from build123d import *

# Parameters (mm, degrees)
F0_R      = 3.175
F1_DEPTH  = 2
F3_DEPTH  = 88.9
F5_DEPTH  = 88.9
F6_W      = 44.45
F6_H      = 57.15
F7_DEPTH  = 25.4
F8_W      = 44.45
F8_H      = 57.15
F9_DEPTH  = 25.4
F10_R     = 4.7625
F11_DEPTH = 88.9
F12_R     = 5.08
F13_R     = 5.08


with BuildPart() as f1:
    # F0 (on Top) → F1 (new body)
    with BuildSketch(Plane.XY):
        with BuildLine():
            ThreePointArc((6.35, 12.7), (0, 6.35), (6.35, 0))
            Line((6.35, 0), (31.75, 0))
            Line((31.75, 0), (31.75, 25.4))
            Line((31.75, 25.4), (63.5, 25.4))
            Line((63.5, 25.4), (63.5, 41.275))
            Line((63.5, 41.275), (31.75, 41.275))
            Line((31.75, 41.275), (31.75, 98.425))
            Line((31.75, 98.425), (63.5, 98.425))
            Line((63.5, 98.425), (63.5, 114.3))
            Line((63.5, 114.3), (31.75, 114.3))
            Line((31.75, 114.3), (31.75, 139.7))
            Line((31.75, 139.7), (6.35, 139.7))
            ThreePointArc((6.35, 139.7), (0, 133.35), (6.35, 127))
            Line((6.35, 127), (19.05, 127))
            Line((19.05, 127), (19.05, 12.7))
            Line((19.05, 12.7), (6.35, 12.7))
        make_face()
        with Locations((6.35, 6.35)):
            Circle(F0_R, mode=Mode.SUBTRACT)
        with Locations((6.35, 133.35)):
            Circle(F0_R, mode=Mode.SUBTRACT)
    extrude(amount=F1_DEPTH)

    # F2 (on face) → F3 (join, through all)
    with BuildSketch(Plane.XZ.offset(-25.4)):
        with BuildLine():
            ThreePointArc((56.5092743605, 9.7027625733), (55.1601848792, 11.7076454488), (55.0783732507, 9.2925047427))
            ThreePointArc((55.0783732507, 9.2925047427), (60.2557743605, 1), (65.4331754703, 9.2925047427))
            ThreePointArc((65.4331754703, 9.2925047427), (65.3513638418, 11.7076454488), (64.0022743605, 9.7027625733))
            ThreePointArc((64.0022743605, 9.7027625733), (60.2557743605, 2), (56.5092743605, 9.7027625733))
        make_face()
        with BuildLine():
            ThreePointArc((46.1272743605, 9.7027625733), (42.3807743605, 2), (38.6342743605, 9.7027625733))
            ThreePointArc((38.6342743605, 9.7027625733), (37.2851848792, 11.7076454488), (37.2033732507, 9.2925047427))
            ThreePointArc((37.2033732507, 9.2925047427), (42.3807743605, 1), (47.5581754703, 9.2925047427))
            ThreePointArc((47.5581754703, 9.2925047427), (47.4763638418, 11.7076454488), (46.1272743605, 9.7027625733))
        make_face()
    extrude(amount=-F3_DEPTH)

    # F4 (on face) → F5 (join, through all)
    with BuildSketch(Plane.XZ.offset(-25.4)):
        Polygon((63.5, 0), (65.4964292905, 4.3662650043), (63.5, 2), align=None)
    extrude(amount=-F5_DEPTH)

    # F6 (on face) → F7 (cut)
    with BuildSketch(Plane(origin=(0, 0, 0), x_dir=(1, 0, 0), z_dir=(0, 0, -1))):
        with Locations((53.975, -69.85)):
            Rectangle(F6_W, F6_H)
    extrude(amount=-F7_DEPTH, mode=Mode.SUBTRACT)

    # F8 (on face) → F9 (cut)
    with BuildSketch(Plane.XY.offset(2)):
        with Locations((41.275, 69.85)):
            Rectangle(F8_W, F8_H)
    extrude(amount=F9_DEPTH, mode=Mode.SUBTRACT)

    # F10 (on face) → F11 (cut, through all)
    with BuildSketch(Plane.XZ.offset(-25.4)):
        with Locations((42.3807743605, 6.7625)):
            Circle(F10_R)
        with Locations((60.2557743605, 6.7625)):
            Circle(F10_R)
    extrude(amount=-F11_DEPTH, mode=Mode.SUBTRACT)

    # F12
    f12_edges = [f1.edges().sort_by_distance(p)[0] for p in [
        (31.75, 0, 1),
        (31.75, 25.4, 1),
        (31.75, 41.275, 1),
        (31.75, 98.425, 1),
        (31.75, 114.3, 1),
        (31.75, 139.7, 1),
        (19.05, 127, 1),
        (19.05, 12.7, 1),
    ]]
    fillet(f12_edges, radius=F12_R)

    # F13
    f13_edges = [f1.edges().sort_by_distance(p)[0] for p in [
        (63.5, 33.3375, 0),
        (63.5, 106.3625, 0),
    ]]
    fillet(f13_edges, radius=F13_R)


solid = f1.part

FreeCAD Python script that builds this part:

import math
import FreeCAD as App
import Part
import Sketcher

V = App.Vector
Q = App.Units.Quantity


def edges_at(feature, points):
    """Names of the edges that pass closest to the given points."""
    edges = feature.Shape.Edges
    near = lambda p: min(range(len(edges)), key=lambda i: edges[i].distToShape(Part.Vertex(*p))[0])
    return sorted({f"Edge{near(p) + 1}" for p in points})

doc = App.newDocument("Part")
body = doc.addObject("PartDesign::Body", "Body")

sketch1 = body.newObject("Sketcher::SketchObject", "Sketch")
sketch1.AttachmentSupport = (doc.getObject("XY_Plane"), [""])
sketch1.MapMode = "FlatFace"
sketch1.addGeometry(Part.ArcOfCircle(Part.Circle(V(6.3, 6.3, 0), V(0, 0, 1), 6.3), math.radians(90), math.radians(270)), False)
sketch1.addGeometry(Part.LineSegment(V(6.3, 0, 0), V(31.8, 0, 0)), False)
sketch1.addGeometry(Part.LineSegment(V(31.8, 0, 0), V(31.8, 25.4, 0)), False)
sketch1.addGeometry(Part.LineSegment(V(31.8, 25.4, 0), V(63.5, 25.4, 0)), False)
sketch1.addGeometry(Part.LineSegment(V(63.5, 25.4, 0), V(63.5, 41.3, 0)), False)
sketch1.addGeometry(Part.LineSegment(V(63.5, 41.3, 0), V(31.8, 41.3, 0)), False)
sketch1.addGeometry(Part.LineSegment(V(31.8, 41.3, 0), V(31.8, 98.4, 0)), False)
sketch1.addGeometry(Part.LineSegment(V(31.8, 98.4, 0), V(63.5, 98.4, 0)), False)
sketch1.addGeometry(Part.LineSegment(V(63.5, 98.4, 0), V(63.5, 114.3, 0)), False)
sketch1.addGeometry(Part.LineSegment(V(63.5, 114.3, 0), V(31.8, 114.3, 0)), False)
sketch1.addGeometry(Part.LineSegment(V(31.8, 114.3, 0), V(31.8, 139.7, 0)), False)
sketch1.addGeometry(Part.LineSegment(V(31.8, 139.7, 0), V(6.3, 139.7, 0)), False)
sketch1.addGeometry(Part.ArcOfCircle(Part.Circle(V(6.3, 133.3, 0), V(0, 0, 1), 6.3), math.radians(90), math.radians(270)), False)
sketch1.addGeometry(Part.LineSegment(V(6.3, 127, 0), V(19.1, 127, 0)), False)
sketch1.addGeometry(Part.LineSegment(V(19.1, 127, 0), V(19.1, 12.7, 0)), False)
sketch1.addGeometry(Part.LineSegment(V(19.1, 12.7, 0), V(6.3, 12.7, 0)), False)
sketch1.addGeometry(Part.Circle(V(6.3, 6.3, 0), V(0, 0, 1), 3.2), False)
sketch1.addGeometry(Part.Circle(V(6.3, 133.3, 0), V(0, 0, 1), 3.2), False)
sketch1.addConstraint(Sketcher.Constraint("Tangent", 0, 2, 1, 1))
sketch1.addConstraint(Sketcher.Constraint("Coincident", 1, 2, 2, 1))
sketch1.addConstraint(Sketcher.Constraint("Coincident", 2, 2, 3, 1))
sketch1.addConstraint(Sketcher.Constraint("Coincident", 3, 2, 4, 1))
sketch1.addConstraint(Sketcher.Constraint("Coincident", 4, 2, 5, 1))
sketch1.addConstraint(Sketcher.Constraint("Coincident", 5, 2, 6, 1))
sketch1.addConstraint(Sketcher.Constraint("Coincident", 6, 2, 7, 1))
sketch1.addConstraint(Sketcher.Constraint("Coincident", 7, 2, 8, 1))
sketch1.addConstraint(Sketcher.Constraint("Coincident", 8, 2, 9, 1))
sketch1.addConstraint(Sketcher.Constraint("Coincident", 9, 2, 10, 1))
sketch1.addConstraint(Sketcher.Constraint("Coincident", 10, 2, 11, 1))
sketch1.addConstraint(Sketcher.Constraint("Tangent", 11, 2, 12, 1))
sketch1.addConstraint(Sketcher.Constraint("Tangent", 12, 2, 13, 1))
sketch1.addConstraint(Sketcher.Constraint("Coincident", 13, 2, 14, 1))
sketch1.addConstraint(Sketcher.Constraint("Coincident", 14, 2, 15, 1))
sketch1.addConstraint(Sketcher.Constraint("Tangent", 15, 2, 0, 1))
sketch1.addConstraint(Sketcher.Constraint("Horizontal", 1))
sketch1.addConstraint(Sketcher.Constraint("Vertical", 2))
sketch1.addConstraint(Sketcher.Constraint("Horizontal", 3))
sketch1.addConstraint(Sketcher.Constraint("Vertical", 4))
sketch1.addConstraint(Sketcher.Constraint("Horizontal", 5))
sketch1.addConstraint(Sketcher.Constraint("Vertical", 6))
sketch1.addConstraint(Sketcher.Constraint("Horizontal", 7))
sketch1.addConstraint(Sketcher.Constraint("Vertical", 8))
sketch1.addConstraint(Sketcher.Constraint("Horizontal", 9))
sketch1.addConstraint(Sketcher.Constraint("Vertical", 10))
sketch1.addConstraint(Sketcher.Constraint("Horizontal", 11))
sketch1.addConstraint(Sketcher.Constraint("Horizontal", 13))
sketch1.addConstraint(Sketcher.Constraint("Vertical", 14))
sketch1.addConstraint(Sketcher.Constraint("Horizontal", 15))
sketch1.addConstraint(Sketcher.Constraint("Coincident", 16, 3, 0, 3))
sketch1.addConstraint(Sketcher.Constraint("Coincident", 17, 3, 12, 3))
sketch1.addConstraint(Sketcher.Constraint("Equal", 0, 12))
sketch1.addConstraint(Sketcher.Constraint("Equal", 16, 17))
sketch1.addConstraint(Sketcher.Constraint("PointOnObject", 0, 2, -1))
sketch1.addConstraint(Sketcher.Constraint("Vertical", 0, 3, 12, 3))
sketch1.addConstraint(Sketcher.Constraint("Vertical", 2, 2, 5, 2))
sketch1.addConstraint(Sketcher.Constraint("Vertical", 4, 2, 7, 2))
sketch1.addConstraint(Sketcher.Constraint("Vertical", 6, 2, 9, 2))
sketch1.addConstraint(Sketcher.Constraint("Equal", 11, 2))
sketch1.addConstraint(Sketcher.Constraint("Equal", 4, 8))
sketch1.addConstraint(Sketcher.Constraint("Equal", 2, 10))
sketch1.addConstraint(Sketcher.Constraint("Diameter", 16, Q("0.25 in")))
sketch1.addConstraint(Sketcher.Constraint("DistanceX", 1, 1, 1, 2, Q("1 in")))
sketch1.addConstraint(Sketcher.Constraint("Radius", 0, Q("0.25 in")))
sketch1.addConstraint(Sketcher.Constraint("DistanceX", 13, 1, 13, 2, Q("0.5 in")))
sketch1.addConstraint(Sketcher.Constraint("DistanceY", 14, 2, 14, 1, Q("4.5 in")))
sketch1.addConstraint(Sketcher.Constraint("DistanceX", 3, 1, 3, 2, Q("1.25 in")))
sketch1.addConstraint(Sketcher.Constraint("DistanceY", 6, 1, 6, 2, Q("2.25 in")))
sketch1.addConstraint(Sketcher.Constraint("DistanceX", -1, 1, 3, 2, Q("2.5 in")))
pad1 = body.newObject("PartDesign::Pad", "Pad")
pad1.Profile = sketch1
pad1.Length = 2

sketch2 = body.newObject("Sketcher::SketchObject", "Sketch001")
sketch2.AttachmentSupport = (doc.getObject("XZ_Plane"), [""])
sketch2.MapMode = "FlatFace"
sketch2.AttachmentOffset = App.Placement(V(0, 0, -1 * 25.4), App.Rotation())
sketch2.addGeometry(Part.ArcOfCircle(Part.Circle(V(55.5, 10.5, 0), V(0, 0, 1), 1.3), math.radians(-38), math.radians(250)), False)
sketch2.addGeometry(Part.ArcOfCircle(Part.Circle(V(60.3, 6.8, 0), V(0, 0, 1), 5.8), math.radians(154), math.radians(386)), False)
sketch2.addGeometry(Part.ArcOfCircle(Part.Circle(V(65, 10.5, 0), V(0, 0, 1), 1.3), math.radians(-70), math.radians(218)), False)
sketch2.addGeometry(Part.ArcOfCircle(Part.Circle(V(60.3, 6.8, 0), V(0, 0, 1), 4.8), math.radians(142), math.radians(398)), False)
sketch2.addGeometry(Part.ArcOfCircle(Part.Circle(V(42.4, 6.8, 0), V(0, 0, 1), 4.8), math.radians(142), math.radians(398)), False)
sketch2.addGeometry(Part.ArcOfCircle(Part.Circle(V(37.6, 10.5, 0), V(0, 0, 1), 1.3), math.radians(-38), math.radians(250)), False)
sketch2.addGeometry(Part.ArcOfCircle(Part.Circle(V(42.4, 6.8, 0), V(0, 0, 1), 5.8), math.radians(154), math.radians(386)), False)
sketch2.addGeometry(Part.ArcOfCircle(Part.Circle(V(47.1, 10.5, 0), V(0, 0, 1), 1.3), math.radians(-70), math.radians(218)), False)
sketch2.addConstraint(Sketcher.Constraint("Coincident", 0, 2, 1, 1))
sketch2.addConstraint(Sketcher.Constraint("Coincident", 1, 2, 2, 1))
sketch2.addConstraint(Sketcher.Constraint("Tangent", 2, 2, 3, 2))
sketch2.addConstraint(Sketcher.Constraint("Tangent", 3, 1, 0, 1))
sketch2.addConstraint(Sketcher.Constraint("Tangent", 4, 1, 5, 1))
sketch2.addConstraint(Sketcher.Constraint("Coincident", 5, 2, 6, 1))
sketch2.addConstraint(Sketcher.Constraint("Coincident", 6, 2, 7, 1))
sketch2.addConstraint(Sketcher.Constraint("Tangent", 7, 2, 4, 2))
sketch2.addConstraint(Sketcher.Constraint("Coincident", 3, 3, 1, 3))
sketch2.addConstraint(Sketcher.Constraint("Coincident", 6, 3, 4, 3))
sketch2.addConstraint(Sketcher.Constraint("Equal", 0, 2))
sketch2.addConstraint(Sketcher.Constraint("Equal", 3, 4))
sketch2.addConstraint(Sketcher.Constraint("Equal", 2, 5))
sketch2.addConstraint(Sketcher.Constraint("Equal", 1, 6))
sketch2.addConstraint(Sketcher.Constraint("Equal", 5, 7))
sketch2.addConstraint(Sketcher.Constraint("Horizontal", 0, 3, 2, 3))
sketch2.addConstraint(Sketcher.Constraint("Horizontal", 3, 3, 4, 3))
sketch2.addConstraint(Sketcher.Constraint("Horizontal", 2, 3, 5, 3))
sketch2.addConstraint(Sketcher.Constraint("Horizontal", 5, 3, 7, 3))
sketch2.addConstraint(Sketcher.Constraint("Radius", 0, Q("0.05 in")))
sketch2.addConstraint(Sketcher.Constraint("Radius", 3, Q("0.1875 in")))
sketch2.addConstraint(Sketcher.Constraint("Radius", 1, 5.7625))
sketch2.addConstraint(Sketcher.Constraint("DistanceX", 3, 1, 2, 2, Q("0.295 in")))
sketch2.addConstraint(Sketcher.Constraint("DistanceY", -1, 1, 1, 3, 6.7625))
sketch2.addConstraint(Sketcher.Constraint("DistanceX", 4, 3, 1, 3, 17.875))
sketch2.addConstraint(Sketcher.Constraint("DistanceX", -1, 1, 2, 3, 65.001341))
pad2 = body.newObject("PartDesign::Pad", "Pad001")
pad2.Profile = sketch2
pad2.Length = Q("3.5 in")
pad2.Reversed = True

sketch3 = body.newObject("Sketcher::SketchObject", "Sketch002")
sketch3.AttachmentSupport = (doc.getObject("XZ_Plane"), [""])
sketch3.MapMode = "FlatFace"
sketch3.AttachmentOffset = App.Placement(V(0, 0, -1 * 25.4), App.Rotation())
sketch3.addGeometry(Part.LineSegment(V(63.5, 0, 0), V(65.5, 4.4, 0)), False)
sketch3.addGeometry(Part.LineSegment(V(65.5, 4.4, 0), V(63.5, 2, 0)), False)
sketch3.addGeometry(Part.LineSegment(V(63.5, 2, 0), V(63.5, 0, 0)), False)
sketch3.addConstraint(Sketcher.Constraint("Coincident", 0, 2, 1, 1))
sketch3.addConstraint(Sketcher.Constraint("Coincident", 1, 2, 2, 1))
sketch3.addConstraint(Sketcher.Constraint("Coincident", 2, 2, 0, 1))
sketch3.addConstraint(Sketcher.Constraint("Vertical", 2))
sketch3.addConstraint(Sketcher.Constraint("PointOnObject", 2, 2, -1))
sketch3.addConstraint(Sketcher.Constraint("DistanceX", -1, 1, 1, 2, Q("2.5 in")))
sketch3.addConstraint(Sketcher.Constraint("DistanceY", 2, 2, 2, 1, 2.0))
sketch3.addConstraint(Sketcher.Constraint("DistanceY", -1, 1, 0, 2, Q("0.1719002 in")))
sketch3.addConstraint(Sketcher.Constraint("Distance", 0, 4.801042))
pad3 = body.newObject("PartDesign::Pad", "Pad002")
pad3.Profile = sketch3
pad3.Length = Q("3.5 in")
pad3.Reversed = True

sketch4 = body.newObject("Sketcher::SketchObject", "Sketch003")
sketch4.AttachmentSupport = (doc.getObject("XY_Plane"), [""])
sketch4.MapMode = "FlatFace"
sketch4.addGeometry(Part.LineSegment(V(32, 41, 0), V(32, 98, 0)), False)
sketch4.addGeometry(Part.LineSegment(V(32, 98, 0), V(76, 98, 0)), False)
sketch4.addGeometry(Part.LineSegment(V(76, 98, 0), V(76, 41, 0)), False)
sketch4.addGeometry(Part.LineSegment(V(76, 41, 0), V(32, 41, 0)), False)
sketch4.addConstraint(Sketcher.Constraint("Coincident", 0, 2, 1, 1))
sketch4.addConstraint(Sketcher.Constraint("Coincident", 1, 2, 2, 1))
sketch4.addConstraint(Sketcher.Constraint("Coincident", 2, 2, 3, 1))
sketch4.addConstraint(Sketcher.Constraint("Coincident", 3, 2, 0, 1))
sketch4.addConstraint(Sketcher.Constraint("Vertical", 0))
sketch4.addConstraint(Sketcher.Constraint("Horizontal", 1))
sketch4.addConstraint(Sketcher.Constraint("Vertical", 2))
sketch4.addConstraint(Sketcher.Constraint("Horizontal", 3))
sketch4.addConstraint(Sketcher.Constraint("DistanceX", -1, 1, 1, 2, Q("3 in")))
sketch4.addConstraint(Sketcher.Constraint("DistanceX", 1, 1, 1, 2, Q("1.75 in")))
sketch4.addConstraint(Sketcher.Constraint("DistanceY", 0, 1, 0, 2, Q("2.25 in")))
sketch4.addConstraint(Sketcher.Constraint("DistanceY", -1, 1, 0, 2, Q("3.875 in")))
pocket1 = body.newObject("PartDesign::Pocket", "Pocket")
pocket1.Profile = sketch4
pocket1.Length = Q("1 in")
pocket1.Reversed = True

sketch5 = body.newObject("Sketcher::SketchObject", "Sketch004")
sketch5.AttachmentSupport = (doc.getObject("XY_Plane"), [""])
sketch5.MapMode = "FlatFace"
sketch5.AttachmentOffset = App.Placement(V(0, 0, 2), App.Rotation())
sketch5.addGeometry(Part.LineSegment(V(19, 98, 0), V(19, 41, 0)), False)
sketch5.addGeometry(Part.LineSegment(V(19, 41, 0), V(64, 41, 0)), False)
sketch5.addGeometry(Part.LineSegment(V(64, 41, 0), V(64, 98, 0)), False)
sketch5.addGeometry(Part.LineSegment(V(64, 98, 0), V(19, 98, 0)), False)
sketch5.addConstraint(Sketcher.Constraint("Coincident", 0, 2, 1, 1))
sketch5.addConstraint(Sketcher.Constraint("Coincident", 1, 2, 2, 1))
sketch5.addConstraint(Sketcher.Constraint("Coincident", 2, 2, 3, 1))
sketch5.addConstraint(Sketcher.Constraint("Coincident", 3, 2, 0, 1))
sketch5.addConstraint(Sketcher.Constraint("Vertical", 0))
sketch5.addConstraint(Sketcher.Constraint("Horizontal", 1))
sketch5.addConstraint(Sketcher.Constraint("Vertical", 2))
sketch5.addConstraint(Sketcher.Constraint("Horizontal", 3))
sketch5.addConstraint(Sketcher.Constraint("DistanceX", 1, 1, 1, 2, Q("1.75 in")))
sketch5.addConstraint(Sketcher.Constraint("DistanceY", 0, 2, 0, 1, Q("2.25 in")))
sketch5.addConstraint(Sketcher.Constraint("DistanceX", -1, 1, 1, 2, Q("2.5 in")))
sketch5.addConstraint(Sketcher.Constraint("DistanceY", -1, 1, 0, 2, Q("1.625 in")))
pocket2 = body.newObject("PartDesign::Pocket", "Pocket001")
pocket2.Profile = sketch5
pocket2.Length = Q("1 in")
pocket2.Reversed = True

sketch6 = body.newObject("Sketcher::SketchObject", "Sketch005")
sketch6.AttachmentSupport = (doc.getObject("XZ_Plane"), [""])
sketch6.MapMode = "FlatFace"
sketch6.AttachmentOffset = App.Placement(V(0, 0, -1 * 25.4), App.Rotation())
sketch6.addGeometry(Part.Circle(V(42.4, 6.8, 0), V(0, 0, 1), 4.8), False)
sketch6.addGeometry(Part.Circle(V(60.3, 6.8, 0), V(0, 0, 1), 4.8), False)
sketch6.addConstraint(Sketcher.Constraint("Equal", 0, 1))
sketch6.addConstraint(Sketcher.Constraint("Horizontal", 0, 3, 1, 3))
sketch6.addConstraint(Sketcher.Constraint("Diameter", 0, Q("0.375 in")))
sketch6.addConstraint(Sketcher.Constraint("DistanceY", -1, 1, 0, 3, 6.7625))
sketch6.addConstraint(Sketcher.Constraint("DistanceX", 0, 3, 1, 3, 17.875))
sketch6.addConstraint(Sketcher.Constraint("DistanceX", -1, 1, 0, 3, 42.380774))
pocket3 = body.newObject("PartDesign::Pocket", "Pocket002")
pocket3.Profile = sketch6
pocket3.Type = "ThroughAll"
doc.recompute()

fillet = body.newObject("PartDesign::Fillet", "Fillet")
fillet.Base = (pocket3, edges_at(pocket3, [
    (31.75, 0, 1),
    (31.75, 25.4, 1),
    (31.75, 41.275, 1),
    (31.75, 98.425, 1),
    (31.75, 114.3, 1),
    (31.75, 139.7, 1),
    (19.05, 127, 1),
    (19.05, 12.7, 1),
]))
fillet.Radius = Q("0.2 in")
doc.recompute()

fillet2 = body.newObject("PartDesign::Fillet", "Fillet001")
fillet2.Base = (fillet, edges_at(fillet, [(63.5, 33.337, 0), (63.5, 106.362, 0)]))
fillet2.Radius = Q("0.2 in")

doc.recompute()
